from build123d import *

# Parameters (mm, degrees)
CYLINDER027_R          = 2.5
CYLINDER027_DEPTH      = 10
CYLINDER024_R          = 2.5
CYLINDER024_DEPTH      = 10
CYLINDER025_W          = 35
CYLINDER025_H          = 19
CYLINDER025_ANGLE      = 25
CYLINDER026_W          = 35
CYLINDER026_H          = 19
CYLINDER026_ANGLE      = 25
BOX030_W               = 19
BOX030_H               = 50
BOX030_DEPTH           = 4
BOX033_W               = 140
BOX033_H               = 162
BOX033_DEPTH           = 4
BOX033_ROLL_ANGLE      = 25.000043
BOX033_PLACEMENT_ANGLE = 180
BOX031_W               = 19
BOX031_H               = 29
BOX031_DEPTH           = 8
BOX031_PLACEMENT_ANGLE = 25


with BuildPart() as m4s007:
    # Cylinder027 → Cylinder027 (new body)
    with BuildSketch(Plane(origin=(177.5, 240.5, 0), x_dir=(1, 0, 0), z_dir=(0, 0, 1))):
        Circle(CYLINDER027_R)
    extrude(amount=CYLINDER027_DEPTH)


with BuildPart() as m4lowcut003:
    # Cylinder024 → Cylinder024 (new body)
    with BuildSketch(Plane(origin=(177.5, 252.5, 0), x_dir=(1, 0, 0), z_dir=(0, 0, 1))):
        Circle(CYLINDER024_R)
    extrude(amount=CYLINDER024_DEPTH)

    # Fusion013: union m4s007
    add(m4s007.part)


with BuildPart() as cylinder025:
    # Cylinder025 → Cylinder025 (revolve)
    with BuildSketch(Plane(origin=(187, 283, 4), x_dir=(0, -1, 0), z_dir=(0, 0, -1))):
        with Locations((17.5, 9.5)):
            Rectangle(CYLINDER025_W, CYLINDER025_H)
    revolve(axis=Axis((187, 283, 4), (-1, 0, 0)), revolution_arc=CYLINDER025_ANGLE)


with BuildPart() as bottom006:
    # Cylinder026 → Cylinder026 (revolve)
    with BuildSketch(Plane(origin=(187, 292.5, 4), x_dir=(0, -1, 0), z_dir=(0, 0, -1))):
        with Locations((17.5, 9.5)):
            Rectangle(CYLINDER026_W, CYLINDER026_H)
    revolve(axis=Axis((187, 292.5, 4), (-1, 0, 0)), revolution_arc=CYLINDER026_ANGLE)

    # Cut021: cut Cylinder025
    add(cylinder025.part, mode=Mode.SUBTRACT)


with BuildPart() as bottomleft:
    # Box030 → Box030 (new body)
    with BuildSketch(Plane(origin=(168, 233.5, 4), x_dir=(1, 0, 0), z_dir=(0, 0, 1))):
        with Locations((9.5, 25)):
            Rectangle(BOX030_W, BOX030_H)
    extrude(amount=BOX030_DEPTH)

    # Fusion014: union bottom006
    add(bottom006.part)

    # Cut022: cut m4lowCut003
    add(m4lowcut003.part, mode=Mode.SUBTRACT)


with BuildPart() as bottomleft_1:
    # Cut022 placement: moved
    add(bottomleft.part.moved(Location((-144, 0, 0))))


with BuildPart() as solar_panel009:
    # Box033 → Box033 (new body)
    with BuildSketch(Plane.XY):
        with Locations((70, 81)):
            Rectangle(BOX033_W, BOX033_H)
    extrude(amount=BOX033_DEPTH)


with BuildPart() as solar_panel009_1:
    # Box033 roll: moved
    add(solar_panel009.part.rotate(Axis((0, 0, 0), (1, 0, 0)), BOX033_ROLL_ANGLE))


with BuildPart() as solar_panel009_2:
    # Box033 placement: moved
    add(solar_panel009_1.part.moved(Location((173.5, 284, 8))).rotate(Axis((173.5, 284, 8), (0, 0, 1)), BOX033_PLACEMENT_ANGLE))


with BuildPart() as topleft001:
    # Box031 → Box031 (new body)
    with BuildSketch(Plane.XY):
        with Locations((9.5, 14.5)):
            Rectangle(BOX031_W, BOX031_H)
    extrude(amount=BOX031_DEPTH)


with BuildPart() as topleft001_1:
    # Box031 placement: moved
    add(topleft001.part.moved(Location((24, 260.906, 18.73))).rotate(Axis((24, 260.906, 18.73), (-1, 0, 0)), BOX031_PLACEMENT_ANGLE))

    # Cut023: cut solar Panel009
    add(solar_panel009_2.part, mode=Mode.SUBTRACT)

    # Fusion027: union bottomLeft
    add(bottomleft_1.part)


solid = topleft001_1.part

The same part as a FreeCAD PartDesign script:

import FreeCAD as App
import Part
import Sketcher

V = App.Vector

doc = App.newDocument("Part")
body = doc.addObject("PartDesign::Body", "Body")

sketch1 = body.newObject("Sketcher::SketchObject", "Sketch")
sketch1.AttachmentSupport = (doc.getObject("XY_Plane"), [""])
sketch1.MapMode = "FlatFace"
sketch1.addGeometry(Part.Circle(V(177.5, 240.5, 0), V(0, 0, 1), 2.5), False)
sketch1.addConstraint(Sketcher.Constraint("Diameter", 0, 5.0))
sketch1.addConstraint(Sketcher.Constraint("DistanceX", -1, 1, 0, 3, 177.5))
sketch1.addConstraint(Sketcher.Constraint("DistanceY", -1, 1, 0, 3, 240.5))
pad1 = body.newObject("PartDesign::Pad", "Pad")
pad1.Profile = sketch1
pad1.Length = 10
body2 = doc.addObject("PartDesign::Body", "Body001")
body2.AllowCompound = True

sketch2 = body2.newObject("Sketcher::SketchObject", "Sketch001")
sketch2.AttachmentSupport = (doc.getObject("XY_Plane001"), [""])
sketch2.MapMode = "FlatFace"
sketch2.addGeometry(Part.Circle(V(177.5, 252.5, 0), V(0, 0, 1), 2.5), False)
sketch2.addConstraint(Sketcher.Constraint("Diameter", 0, 5.0))
sketch2.addConstraint(Sketcher.Constraint("DistanceX", -1, 1, 0, 3, 177.5))
sketch2.addConstraint(Sketcher.Constraint("DistanceY", -1, 1, 0, 3, 252.5))
pad2 = body2.newObject("PartDesign::Pad", "Pad001")
pad2.Profile = sketch2
pad2.Length = 10
doc.recompute()

boolean = body2.newObject("PartDesign::Boolean", "Boolean")
boolean.Type = "Fuse"
boolean.addObjects([body])
body3 = doc.addObject("PartDesign::Body", "Body002")

sketch3 = body3.newObject("Sketcher::SketchObject", "Sketch002")
sketch3.AttachmentSupport = (doc.getObject("XY_Plane002"), [""])
sketch3.MapMode = "FlatFace"
sketch3.AttachmentOffset = App.Placement(V(0, 0, 4), App.Rotation())
sketch3.addGeometry(Part.LineSegment(V(168, 283, 0), V(187, 283, 0)), False)
sketch3.addGeometry(Part.LineSegment(V(187, 283, 0), V(187, 248, 0)), False)
sketch3.addGeometry(Part.LineSegment(V(187, 248, 0), V(168, 248, 0)), False)
sketch3.addGeometry(Part.LineSegment(V(168, 248, 0), V(168, 283, 0)), False)
sketch3.addGeometry(Part.LineSegment(V(187, 283, 0), V(168, 283, 0)), True)
sketch3.addConstraint(Sketcher.Constraint("Coincident", 0, 2, 1, 1))
sketch3.addConstraint(Sketcher.Constraint("Coincident", 1, 2, 2, 1))
sketch3.addConstraint(Sketcher.Constraint("Coincident", 2, 2, 3, 1))
sketch3.addConstraint(Sketcher.Constraint("Coincident", 3, 2, 0, 1))
sketch3.addConstraint(Sketcher.Constraint("Horizontal", 0))
sketch3.addConstraint(Sketcher.Constraint("Vertical", 1))
sketch3.addConstraint(Sketcher.Constraint("Horizontal", 2))
sketch3.addConstraint(Sketcher.Constraint("Vertical", 3))
sketch3.addConstraint(Sketcher.Constraint("Horizontal", 4))
sketch3.addConstraint(Sketcher.Constraint("Coincident", 4, 1, 0, 2))
sketch3.addConstraint(Sketcher.Constraint("Vertical", 2, 2, 4, 2))
sketch3.addConstraint(Sketcher.Constraint("DistanceX", 0, 1, 0, 2, 19.0))
sketch3.addConstraint(Sketcher.Constraint("DistanceY", 1, 2, 1, 1, 35.0))
sketch3.addConstraint(Sketcher.Constraint("DistanceX", -1, 1, 0, 2, 187.0))
sketch3.addConstraint(Sketcher.Constraint("DistanceY", -1, 1, 0, 2, 283.0))
revolution = body3.newObject("PartDesign::Revolution", "Revolution")
revolution.Profile = sketch3
revolution.ReferenceAxis = (sketch3, ["Axis0"])
revolution.Angle = 25
body4 = doc.addObject("PartDesign::Body", "Body003")

sketch4 = body4.newObject("Sketcher::SketchObject", "Sketch003")
sketch4.AttachmentSupport = (doc.getObject("XY_Plane003"), [""])
sketch4.MapMode = "FlatFace"
sketch4.AttachmentOffset = App.Placement(V(0, 0, 4), App.Rotation())
sketch4.addGeometry(Part.LineSegment(V(168, 292.5, 0), V(187, 292.5, 0)), False)
sketch4.addGeometry(Part.LineSegment(V(187, 292.5, 0), V(187, 257.5, 0)), False)
sketch4.addGeometry(Part.LineSegment(V(187, 257.5, 0), V(168, 257.5, 0)), False)
sketch4.addGeometry(Part.LineSegment(V(168, 257.5, 0), V(168, 292.5, 0)), False)
sketch4.addGeometry(Part.LineSegment(V(187, 292.5, 0), V(168, 292.5, 0)), True)
sketch4.addConstraint(Sketcher.Constraint("Coincident", 0, 2, 1, 1))
sketch4.addConstraint(Sketcher.Constraint("Coincident", 1, 2, 2, 1))
sketch4.addConstraint(Sketcher.Constraint("Coincident", 2, 2, 3, 1))
sketch4.addConstraint(Sketcher.Constraint("Coincident", 3, 2, 0, 1))
sketch4.addConstraint(Sketcher.Constraint("Horizontal", 0))
sketch4.addConstraint(Sketcher.Constraint("Vertical", 1))
sketch4.addConstraint(Sketcher.Constraint("Horizontal", 2))
sketch4.addConstraint(Sketcher.Constraint("Vertical", 3))
sketch4.addConstraint(Sketcher.Constraint("Horizontal", 4))
sketch4.addConstraint(Sketcher.Constraint("Coincident", 4, 1, 0, 2))
sketch4.addConstraint(Sketcher.Constraint("Vertical", 2, 2, 4, 2))
sketch4.addConstraint(Sketcher.Constraint("DistanceX", 0, 1, 0, 2, 19.0))
sketch4.addConstraint(Sketcher.Constraint("DistanceY", 1, 2, 1, 1, 35.0))
sketch4.addConstraint(Sketcher.Constraint("DistanceX", -1, 1, 0, 2, 187.0))
sketch4.addConstraint(Sketcher.Constraint("DistanceY", -1, 1, 0, 2, 292.5))
revolution2 = body4.newObject("PartDesign::Revolution", "Revolution001")
revolution2.Profile = sketch4
revolution2.ReferenceAxis = (sketch4, ["Axis0"])
revolution2.Angle = 25
doc.recompute()

boolean2 = body4.newObject("PartDesign::Boolean", "Boolean001")
boolean2.Type = "Cut"
boolean2.addObjects([body3])
body5 = doc.addObject("PartDesign::Body", "Body004")

sketch5 = body5.newObject("Sketcher::SketchObject", "Sketch004")
sketch5.AttachmentSupport = (doc.getObject("XY_Plane004"), [""])
sketch5.MapMode = "FlatFace"
sketch5.AttachmentOffset = App.Placement(V(0, 0, 4), App.Rotation())
sketch5.addGeometry(Part.LineSegment(V(168, 283.5, 0), V(168, 233.5, 0)), False)
sketch5.addGeometry(Part.LineSegment(V(168, 233.5, 0), V(187, 233.5, 0)), False)
sketch5.addGeometry(Part.LineSegment(V(187, 233.5, 0), V(187, 283.5, 0)), False)
sketch5.addGeometry(Part.LineSegment(V(187, 283.5, 0), V(168, 283.5, 0)), False)
sketch5.addConstraint(Sketcher.Constraint("Coincident", 0, 2, 1, 1))
sketch5.addConstraint(Sketcher.Constraint("Coincident", 1, 2, 2, 1))
sketch5.addConstraint(Sketcher.Constraint("Coincident", 2, 2, 3, 1))
sketch5.addConstraint(Sketcher.Constraint("Coincident", 3, 2, 0, 1))
sketch5.addConstraint(Sketcher.Constraint("Vertical", 0))
sketch5.addConstraint(Sketcher.Constraint("Horizontal", 1))
sketch5.addConstraint(Sketcher.Constraint("Vertical", 2))
sketch5.addConstraint(Sketcher.Constraint("Horizontal", 3))
sketch5.addConstraint(Sketcher.Constraint("DistanceX", 1, 1, 1, 2, 19.0))
sketch5.addConstraint(Sketcher.Constraint("DistanceY", 0, 2, 0, 1, 50.0))
sketch5.addConstraint(Sketcher.Constraint("DistanceX", -1, 1, 0, 2, 168.0))
sketch5.addConstraint(Sketcher.Constraint("DistanceY", -1, 1, 0, 2, 233.5))
pad3 = body5.newObject("PartDesign::Pad", "Pad002")
pad3.Profile = sketch5
pad3.Length = 4
doc.recompute()

boolean3 = body5.newObject("PartDesign::Boolean", "Boolean002")
boolean3.Type = "Fuse"
boolean3.addObjects([body4])
doc.recompute()

boolean4 = body5.newObject("PartDesign::Boolean", "Boolean003")
boolean4.Type = "Cut"
boolean4.addObjects([body2])
body6 = doc.addObject("PartDesign::Body", "Body005")
doc.recompute()

body5.Placement = App.Placement(V(-144, 0, 0), App.Rotation(V(0, 0, 1), 0))
boolean5 = body6.newObject("PartDesign::Boolean", "Boolean004")
boolean5.Type = "Fuse"
boolean5.addObjects([body5])
body7 = doc.addObject("PartDesign::Body", "Body006")

sketch6 = body7.newObject("Sketcher::SketchObject", "Sketch005")
sketch6.AttachmentSupport = (doc.getObject("XY_Plane006"), [""])
sketch6.MapMode = "FlatFace"
sketch6.addGeometry(Part.LineSegment(V(0, 162, 0), V(0, 0, 0)), False)
sketch6.addGeometry(Part.LineSegment(V(0, 0, 0), V(140, 0, 0)), False)
sketch6.addGeometry(Part.LineSegment(V(140, 0, 0), V(140, 162, 0)), False)
sketch6.addGeometry(Part.LineSegment(V(140, 162, 0), V(0, 162, 0)), False)
sketch6.addConstraint(Sketcher.Constraint("Coincident", 0, 2, 1, 1))
sketch6.addConstraint(Sketcher.Constraint("Coincident", 1, 2, 2, 1))
sketch6.addConstraint(Sketcher.Constraint("Coincident", 2, 2, 3, 1))
sketch6.addConstraint(Sketcher.Constraint("Coincident", 3, 2, 0, 1))
sketch6.addConstraint(Sketcher.Constraint("Vertical", 0))
sketch6.addConstraint(Sketcher.Constraint("Horizontal", 1))
sketch6.addConstraint(Sketcher.Constraint("Vertical", 2))
sketch6.addConstraint(Sketcher.Constraint("Horizontal", 3))
sketch6.addConstraint(Sketcher.Constraint("Coincident", 0, 2, -1, 1))
sketch6.addConstraint(Sketcher.Constraint("DistanceX", 1, 1, 1, 2, 140.0))
sketch6.addConstraint(Sketcher.Constraint("DistanceY", 0, 2, 0, 1, 162.0))
pad4 = body7.newObject("PartDesign::Pad", "Pad003")
pad4.Profile = sketch6
pad4.Length = 4
body8 = doc.addObject("PartDesign::Body", "Body007")
doc.recompute()

body7.Placement = App.Placement(V(0, 0, 0), App.Rotation(V(1, 0, 0), 25.000043))
boolean6 = body8.newObject("PartDesign::Boolean", "Boolean005")
boolean6.Type = "Fuse"
boolean6.addObjects([body7])
body9 = doc.addObject("PartDesign::Body", "Body008")
doc.recompute()

body8.Placement = App.Placement(V(173.5, 284, 8), App.Rotation(V(0, 0, 1), 180))
boolean7 = body9.newObject("PartDesign::Boolean", "Boolean006")
boolean7.Type = "Fuse"
boolean7.addObjects([body8])
body10 = doc.addObject("PartDesign::Body", "Body009")

sketch7 = body10.newObject("Sketcher::SketchObject", "Sketch006")
sketch7.AttachmentSupport = (doc.getObject("XY_Plane009"), [""])
sketch7.MapMode = "FlatFace"
sketch7.addGeometry(Part.LineSegment(V(0, 29, 0), V(0, 0, 0)), False)
sketch7.addGeometry(Part.LineSegment(V(0, 0, 0), V(19, 0, 0)), False)
sketch7.addGeometry(Part.LineSegment(V(19, 0, 0), V(19, 29, 0)), False)
sketch7.addGeometry(Part.LineSegment(V(19, 29, 0), V(0, 29, 0)), False)
sketch7.addConstraint(Sketcher.Constraint("Coincident", 0, 2, 1, 1))
sketch7.addConstraint(Sketcher.Constraint("Coincident", 1, 2, 2, 1))
sketch7.addConstraint(Sketcher.Constraint("Coincident", 2, 2, 3, 1))
sketch7.addConstraint(Sketcher.Constraint("Coincident", 3, 2, 0, 1))
sketch7.addConstraint(Sketcher.Constraint("Vertical", 0))
sketch7.addConstraint(Sketcher.Constraint("Horizontal", 1))
sketch7.addConstraint(Sketcher.Constraint("Vertical", 2))
sketch7.addConstraint(Sketcher.Constraint("Horizontal", 3))
sketch7.addConstraint(Sketcher.Constraint("Coincident", 0, 2, -1, 1))
sketch7.addConstraint(Sketcher.Constraint("DistanceX", 1, 1, 1, 2, 19.0))
sketch7.addConstraint(Sketcher.Constraint("DistanceY", 0, 2, 0, 1, 29.0))
pad5 = body10.newObject("PartDesign::Pad", "Pad004")
pad5.Profile = sketch7
pad5.Length = 8
body11 = doc.addObject("PartDesign::Body", "Body010")
doc.recompute()

body10.Placement = App.Placement(V(24, 260.906, 18.73), App.Rotation(V(-1, 0, 0), 25))
boolean8 = body11.newObject("PartDesign::Boolean", "Boolean007")
boolean8.Type = "Fuse"
boolean8.addObjects([body10])
doc.recompute()

boolean9 = body11.newObject("PartDesign::Boolean", "Boolean008")
boolean9.Type = "Cut"
boolean9.addObjects([body9])
doc.recompute()

boolean10 = body11.newObject("PartDesign::Boolean", "Boolean009")
boolean10.Type = "Fuse"
boolean10.addObjects([body6])

doc.recompute()
